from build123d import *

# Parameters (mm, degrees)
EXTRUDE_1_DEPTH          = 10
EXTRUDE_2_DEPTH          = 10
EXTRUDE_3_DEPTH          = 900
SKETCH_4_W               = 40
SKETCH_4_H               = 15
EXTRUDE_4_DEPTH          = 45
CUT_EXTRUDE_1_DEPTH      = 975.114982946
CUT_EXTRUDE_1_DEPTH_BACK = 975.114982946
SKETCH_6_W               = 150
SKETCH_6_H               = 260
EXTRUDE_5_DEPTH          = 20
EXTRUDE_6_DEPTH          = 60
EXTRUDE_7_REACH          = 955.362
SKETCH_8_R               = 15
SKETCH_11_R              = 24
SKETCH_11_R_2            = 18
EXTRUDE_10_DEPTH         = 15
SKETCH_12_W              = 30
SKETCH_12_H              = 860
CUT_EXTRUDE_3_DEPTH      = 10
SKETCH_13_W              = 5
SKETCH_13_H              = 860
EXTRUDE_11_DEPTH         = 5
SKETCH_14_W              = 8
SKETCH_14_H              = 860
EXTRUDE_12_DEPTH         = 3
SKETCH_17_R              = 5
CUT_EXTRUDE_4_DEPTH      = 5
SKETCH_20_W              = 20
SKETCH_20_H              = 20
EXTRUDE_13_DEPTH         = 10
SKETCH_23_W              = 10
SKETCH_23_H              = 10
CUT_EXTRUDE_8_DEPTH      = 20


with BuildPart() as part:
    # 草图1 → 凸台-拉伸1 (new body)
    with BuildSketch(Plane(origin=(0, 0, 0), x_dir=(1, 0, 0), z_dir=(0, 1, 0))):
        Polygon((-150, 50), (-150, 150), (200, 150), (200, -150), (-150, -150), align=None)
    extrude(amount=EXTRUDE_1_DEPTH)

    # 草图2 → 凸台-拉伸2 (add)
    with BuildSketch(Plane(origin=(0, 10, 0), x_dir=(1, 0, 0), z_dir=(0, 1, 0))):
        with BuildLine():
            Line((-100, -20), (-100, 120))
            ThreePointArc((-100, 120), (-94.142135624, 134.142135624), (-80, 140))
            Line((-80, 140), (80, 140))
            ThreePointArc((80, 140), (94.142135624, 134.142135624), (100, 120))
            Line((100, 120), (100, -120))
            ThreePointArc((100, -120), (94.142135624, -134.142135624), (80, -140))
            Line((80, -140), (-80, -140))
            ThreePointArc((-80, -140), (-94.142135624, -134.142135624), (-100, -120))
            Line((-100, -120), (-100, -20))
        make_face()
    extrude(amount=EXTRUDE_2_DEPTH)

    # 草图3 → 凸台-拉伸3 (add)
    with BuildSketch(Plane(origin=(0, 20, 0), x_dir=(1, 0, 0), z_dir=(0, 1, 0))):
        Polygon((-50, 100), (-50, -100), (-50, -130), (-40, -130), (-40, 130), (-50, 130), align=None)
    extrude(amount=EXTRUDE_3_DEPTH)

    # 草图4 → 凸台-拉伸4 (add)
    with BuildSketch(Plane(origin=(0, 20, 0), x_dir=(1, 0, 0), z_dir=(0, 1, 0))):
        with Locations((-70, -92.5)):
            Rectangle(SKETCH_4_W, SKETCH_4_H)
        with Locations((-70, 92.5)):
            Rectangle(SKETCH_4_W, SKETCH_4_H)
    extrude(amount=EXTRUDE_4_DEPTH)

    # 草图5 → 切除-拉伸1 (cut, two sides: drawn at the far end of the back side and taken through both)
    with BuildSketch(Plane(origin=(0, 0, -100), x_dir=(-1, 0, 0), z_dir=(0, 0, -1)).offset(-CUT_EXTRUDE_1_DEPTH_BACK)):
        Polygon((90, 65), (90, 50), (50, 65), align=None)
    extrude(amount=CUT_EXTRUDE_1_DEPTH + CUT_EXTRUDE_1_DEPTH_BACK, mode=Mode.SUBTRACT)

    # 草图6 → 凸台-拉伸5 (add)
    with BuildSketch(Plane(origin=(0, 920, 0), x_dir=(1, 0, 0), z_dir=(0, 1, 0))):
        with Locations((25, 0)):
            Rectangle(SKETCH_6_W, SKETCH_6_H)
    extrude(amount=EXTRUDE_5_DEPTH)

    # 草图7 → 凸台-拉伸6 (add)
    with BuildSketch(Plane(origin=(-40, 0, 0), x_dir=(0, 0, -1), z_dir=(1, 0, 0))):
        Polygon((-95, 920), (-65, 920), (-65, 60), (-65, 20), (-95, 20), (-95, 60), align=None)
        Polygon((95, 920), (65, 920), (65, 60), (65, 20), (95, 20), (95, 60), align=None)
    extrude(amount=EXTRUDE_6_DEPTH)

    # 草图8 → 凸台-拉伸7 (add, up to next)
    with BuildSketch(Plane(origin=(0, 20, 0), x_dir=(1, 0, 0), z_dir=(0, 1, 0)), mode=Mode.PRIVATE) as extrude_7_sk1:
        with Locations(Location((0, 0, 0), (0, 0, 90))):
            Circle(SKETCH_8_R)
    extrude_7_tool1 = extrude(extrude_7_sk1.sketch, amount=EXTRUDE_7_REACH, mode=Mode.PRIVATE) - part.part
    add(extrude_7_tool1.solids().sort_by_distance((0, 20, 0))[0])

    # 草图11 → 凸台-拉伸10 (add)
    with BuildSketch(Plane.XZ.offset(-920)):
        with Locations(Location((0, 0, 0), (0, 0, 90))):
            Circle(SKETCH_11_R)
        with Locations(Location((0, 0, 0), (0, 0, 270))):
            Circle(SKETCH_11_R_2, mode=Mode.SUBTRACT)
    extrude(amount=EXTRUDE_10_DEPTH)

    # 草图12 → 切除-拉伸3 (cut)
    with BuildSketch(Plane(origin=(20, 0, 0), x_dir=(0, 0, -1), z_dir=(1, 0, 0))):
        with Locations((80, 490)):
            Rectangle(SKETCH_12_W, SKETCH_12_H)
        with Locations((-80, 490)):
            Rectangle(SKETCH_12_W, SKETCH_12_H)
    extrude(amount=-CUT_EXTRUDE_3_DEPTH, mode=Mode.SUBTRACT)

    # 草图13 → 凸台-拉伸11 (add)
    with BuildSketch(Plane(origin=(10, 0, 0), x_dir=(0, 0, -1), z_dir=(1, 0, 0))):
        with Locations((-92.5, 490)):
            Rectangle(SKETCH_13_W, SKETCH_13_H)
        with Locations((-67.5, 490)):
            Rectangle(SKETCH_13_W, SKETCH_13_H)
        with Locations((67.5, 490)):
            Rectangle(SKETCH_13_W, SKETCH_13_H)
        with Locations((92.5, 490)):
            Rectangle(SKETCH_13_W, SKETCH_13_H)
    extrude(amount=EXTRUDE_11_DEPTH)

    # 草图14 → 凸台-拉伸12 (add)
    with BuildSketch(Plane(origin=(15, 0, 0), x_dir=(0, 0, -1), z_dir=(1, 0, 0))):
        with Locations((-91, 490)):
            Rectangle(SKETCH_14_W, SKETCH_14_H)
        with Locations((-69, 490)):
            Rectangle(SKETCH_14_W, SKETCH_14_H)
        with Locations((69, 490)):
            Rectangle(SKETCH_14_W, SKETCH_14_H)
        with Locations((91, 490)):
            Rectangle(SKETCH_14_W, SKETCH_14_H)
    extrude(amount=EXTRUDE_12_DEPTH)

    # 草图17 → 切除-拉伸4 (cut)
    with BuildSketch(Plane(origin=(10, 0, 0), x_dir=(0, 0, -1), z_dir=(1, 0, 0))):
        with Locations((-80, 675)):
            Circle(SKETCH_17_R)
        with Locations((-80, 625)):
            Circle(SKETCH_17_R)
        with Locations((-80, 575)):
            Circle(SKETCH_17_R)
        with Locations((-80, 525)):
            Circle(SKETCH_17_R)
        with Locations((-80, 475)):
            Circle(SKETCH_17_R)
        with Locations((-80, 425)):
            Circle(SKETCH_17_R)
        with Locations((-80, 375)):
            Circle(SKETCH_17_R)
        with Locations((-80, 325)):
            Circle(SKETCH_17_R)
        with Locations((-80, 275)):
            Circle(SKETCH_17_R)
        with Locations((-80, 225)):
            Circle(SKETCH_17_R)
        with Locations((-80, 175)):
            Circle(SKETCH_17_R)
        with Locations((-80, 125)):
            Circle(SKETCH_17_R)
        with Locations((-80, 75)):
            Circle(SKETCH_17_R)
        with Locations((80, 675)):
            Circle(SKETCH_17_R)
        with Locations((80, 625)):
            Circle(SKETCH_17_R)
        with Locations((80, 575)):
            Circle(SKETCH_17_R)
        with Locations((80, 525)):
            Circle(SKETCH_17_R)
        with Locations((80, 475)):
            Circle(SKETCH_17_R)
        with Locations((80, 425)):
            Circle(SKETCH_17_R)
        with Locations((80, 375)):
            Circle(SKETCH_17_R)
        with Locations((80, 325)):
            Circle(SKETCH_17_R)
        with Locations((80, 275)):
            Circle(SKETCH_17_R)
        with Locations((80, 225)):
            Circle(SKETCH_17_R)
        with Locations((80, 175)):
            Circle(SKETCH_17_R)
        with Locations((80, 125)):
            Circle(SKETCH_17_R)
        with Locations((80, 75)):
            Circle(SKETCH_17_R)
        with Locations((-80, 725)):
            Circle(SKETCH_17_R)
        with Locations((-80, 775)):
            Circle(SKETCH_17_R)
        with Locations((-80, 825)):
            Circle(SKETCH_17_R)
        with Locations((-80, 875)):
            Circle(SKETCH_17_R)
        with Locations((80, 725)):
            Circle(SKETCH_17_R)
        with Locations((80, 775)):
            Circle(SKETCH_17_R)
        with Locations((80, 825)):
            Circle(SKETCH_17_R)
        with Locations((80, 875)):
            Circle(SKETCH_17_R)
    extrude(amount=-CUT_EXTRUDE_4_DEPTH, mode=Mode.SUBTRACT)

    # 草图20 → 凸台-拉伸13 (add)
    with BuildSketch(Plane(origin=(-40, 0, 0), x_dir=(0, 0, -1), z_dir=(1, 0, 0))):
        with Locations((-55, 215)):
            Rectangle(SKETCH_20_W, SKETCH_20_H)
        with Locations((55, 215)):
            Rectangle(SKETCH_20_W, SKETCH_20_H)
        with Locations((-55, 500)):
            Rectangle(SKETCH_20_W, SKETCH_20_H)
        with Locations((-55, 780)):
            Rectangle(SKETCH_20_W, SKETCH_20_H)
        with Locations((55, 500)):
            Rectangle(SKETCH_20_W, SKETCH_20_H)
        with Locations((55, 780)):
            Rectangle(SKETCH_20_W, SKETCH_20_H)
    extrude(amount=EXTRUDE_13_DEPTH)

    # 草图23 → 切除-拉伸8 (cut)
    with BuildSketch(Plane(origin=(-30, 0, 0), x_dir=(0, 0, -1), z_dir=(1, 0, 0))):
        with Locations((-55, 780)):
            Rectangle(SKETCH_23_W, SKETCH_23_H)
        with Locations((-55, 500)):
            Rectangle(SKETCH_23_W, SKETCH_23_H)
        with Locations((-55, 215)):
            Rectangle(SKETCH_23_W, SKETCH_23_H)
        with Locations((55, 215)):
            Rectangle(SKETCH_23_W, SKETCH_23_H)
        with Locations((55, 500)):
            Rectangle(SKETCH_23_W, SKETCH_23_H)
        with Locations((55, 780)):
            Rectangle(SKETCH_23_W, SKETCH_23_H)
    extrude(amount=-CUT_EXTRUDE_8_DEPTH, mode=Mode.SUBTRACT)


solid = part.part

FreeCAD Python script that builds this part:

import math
import FreeCAD as App
import Part
import Sketcher

V = App.Vector

doc = App.newDocument("Part")
body = doc.addObject("PartDesign::Body", "Body")

sketch1 = body.newObject("Sketcher::SketchObject", "Sketch")
sketch1.AttachmentSupport = (doc.getObject("XZ_Plane"), [""])
sketch1.MapMode = "FlatFace"
sketch1.addGeometry([
    Part.LineSegment(V(-150, -150, 0), V(-150, 150, 0)),
    Part.LineSegment(V(-150, 150, 0), V(200, 150, 0)),
    Part.LineSegment(V(200, 150, 0), V(200, -150, 0)),
    Part.LineSegment(V(200, -150, 0), V(-150, -150, 0)),
], False)
sketch1.addConstraint([
    Sketcher.Constraint("Coincident", 0, 2, 1, 1),
    Sketcher.Constraint("Coincident", 1, 2, 2, 1),
    Sketcher.Constraint("Coincident", 2, 2, 3, 1),
    Sketcher.Constraint("Coincident", 3, 2, 0, 1),
    Sketcher.Constraint("Vertical", 0),
    Sketcher.Constraint("Horizontal", 1),
    Sketcher.Constraint("Vertical", 2),
    Sketcher.Constraint("Horizontal", 3),
    Sketcher.Constraint("DistanceX", 1, 1, 1, 2, 350.0),
    Sketcher.Constraint("DistanceY", 0, 1, 0, 2, 300.0),
    Sketcher.Constraint("DistanceX", 0, 2, -1, 1, 150.0),
    Sketcher.Constraint("DistanceY", -1, 1, 0, 2, 150.0),
])
pad1 = body.newObject("PartDesign::Pad", "Pad")
pad1.Profile = sketch1
pad1.Length = 10
pad1.Reversed = True

sketch2 = body.newObject("Sketcher::SketchObject", "Sketch001")
sketch2.AttachmentSupport = (doc.getObject("XZ_Plane"), [""])
sketch2.MapMode = "FlatFace"
sketch2.AttachmentOffset = App.Placement(V(0, 0, -10), App.Rotation())
sketch2.addGeometry([
    Part.ArcOfCircle(Part.Circle(V(-80, -120, 0), V(0, 0, 1), 20), math.radians(180), math.radians(270)),
    Part.LineSegment(V(-100, -120, 0), V(-100, 120, 0)),
    Part.ArcOfCircle(Part.Circle(V(-80, 120, 0), V(0, 0, 1), 20), math.radians(90), math.radians(180)),
    Part.LineSegment(V(-80, 140, 0), V(80, 140, 0)),
    Part.ArcOfCircle(Part.Circle(V(80, 120, 0), V(0, 0, 1), 20), math.radians(0), math.radians(90)),
    Part.LineSegment(V(100, 120, 0), V(100, -120, 0)),
    Part.ArcOfCircle(Part.Circle(V(80, -120, 0), V(0, 0, 1), 20), math.radians(-90), math.radians(0)),
    Part.LineSegment(V(80, -140, 0), V(-80, -140, 0)),
], False)
sketch2.addConstraint([
    Sketcher.Constraint("Tangent", 0, 1, 1, 1),
    Sketcher.Constraint("Tangent", 1, 2, 2, 2),
    Sketcher.Constraint("Tangent", 2, 1, 3, 1),
    Sketcher.Constraint("Tangent", 3, 2, 4, 2),
    Sketcher.Constraint("Tangent", 4, 1, 5, 1),
    Sketcher.Constraint("Tangent", 5, 2, 6, 2),
    Sketcher.Constraint("Tangent", 6, 1, 7, 1),
    Sketcher.Constraint("Tangent", 7, 2, 0, 2),
    Sketcher.Constraint("Vertical", 1),
    Sketcher.Constraint("Horizontal", 3),
    Sketcher.Constraint("Vertical", 5),
    Sketcher.Constraint("Horizontal", 7),
    Sketcher.Constraint("Equal", 0, 2),
    Sketcher.Constraint("Equal", 2, 4),
    Sketcher.Constraint("Equal", 4, 6),
    Sketcher.Constraint("Symmetric", 0, 3, 4, 3, -1, 1),
    Sketcher.Constraint("Radius", 0, 20.0),
    Sketcher.Constraint("DistanceX", 3, 1, 3, 2, 160.0),
    Sketcher.Constraint("DistanceY", 1, 1, 1, 2, 240.0),
])
pad2 = body.newObject("PartDesign::Pad", "Pad001")
pad2.Profile = sketch2
pad2.Length = 10
pad2.Reversed = True

sketch3 = body.newObject("Sketcher::SketchObject", "Sketch002")
sketch3.AttachmentSupport = (doc.getObject("XZ_Plane"), [""])
sketch3.MapMode = "FlatFace"
sketch3.AttachmentOffset = App.Placement(V(0, 0, -20), App.Rotation())
sketch3.addGeometry([
    Part.LineSegment(V(-50, 130, 0), V(-40, 130, 0)),
    Part.LineSegment(V(-40, 130, 0), V(-40, -130, 0)),
    Part.LineSegment(V(-40, -130, 0), V(-50, -130, 0)),
    Part.LineSegment(V(-50, -130, 0), V(-50, 130, 0)),
], False)
sketch3.addConstraint([
    Sketcher.Constraint("Coincident", 0, 2, 1, 1),
    Sketcher.Constraint("Coincident", 1, 2, 2, 1),
    Sketcher.Constraint("Coincident", 2, 2, 3, 1),
    Sketcher.Constraint("Coincident", 3, 2, 0, 1),
    Sketcher.Constraint("Horizontal", 0),
    Sketcher.Constraint("Vertical", 1),
    Sketcher.Constraint("Horizontal", 2),
    Sketcher.Constraint("Vertical", 3),
    Sketcher.Constraint("DistanceX", 0, 1, 0, 2, 10.0),
    Sketcher.Constraint("DistanceY", 1, 2, 1, 1, 260.0),
    Sketcher.Constraint("DistanceX", 0, 2, -1, 1, 40.0),
    Sketcher.Constraint("DistanceY", -1, 1, 0, 2, 130.0),
])
pad3 = body.newObject("PartDesign::Pad", "Pad002")
pad3.Profile = sketch3
pad3.Length = 900
pad3.Reversed = True

sketch4 = body.newObject("Sketcher::SketchObject", "Sketch003")
sketch4.AttachmentSupport = (doc.getObject("XZ_Plane"), [""])
sketch4.MapMode = "FlatFace"
sketch4.AttachmentOffset = App.Placement(V(0, 0, -20), App.Rotation())
sketch4.addGeometry([
    Part.LineSegment(V(-90, 85, 0), V(-90, 100, 0)),
    Part.LineSegment(V(-90, 100, 0), V(-50, 100, 0)),
    Part.LineSegment(V(-50, 100, 0), V(-50, 85, 0)),
    Part.LineSegment(V(-50, 85, 0), V(-90, 85, 0)),
    Part.LineSegment(V(-90, -100, 0), V(-90, -85, 0)),
    Part.LineSegment(V(-90, -85, 0), V(-50, -85, 0)),
    Part.LineSegment(V(-50, -85, 0), V(-50, -100, 0)),
    Part.LineSegment(V(-50, -100, 0), V(-90, -100, 0)),
], False)
sketch4.addConstraint([
    Sketcher.Constraint("Coincident", 0, 2, 1, 1),
    Sketcher.Constraint("Coincident", 1, 2, 2, 1),
    Sketcher.Constraint("Coincident", 2, 2, 3, 1),
    Sketcher.Constraint("Coincident", 3, 2, 0, 1),
    Sketcher.Constraint("Coincident", 4, 2, 5, 1),
    Sketcher.Constraint("Coincident", 5, 2, 6, 1),
    Sketcher.Constraint("Coincident", 6, 2, 7, 1),
    Sketcher.Constraint("Coincident", 7, 2, 4, 1),
    Sketcher.Constraint("Vertical", 0),
    Sketcher.Constraint("Horizontal", 1),
    Sketcher.Constraint("Vertical", 2),
    Sketcher.Constraint("Horizontal", 3),
    Sketcher.Constraint("Vertical", 4),
    Sketcher.Constraint("Horizontal", 5),
    Sketcher.Constraint("Vertical", 6),
    Sketcher.Constraint("Horizontal", 7),
    Sketcher.Constraint("Symmetric", 3, 2, 4, 2, -1),
    Sketcher.Constraint("Symmetric", 1, 2, 6, 2, -1),
    Sketcher.Constraint("DistanceX", 1, 1, 1, 2, 40.0),
    Sketcher.Constraint("DistanceY", 0, 1, 0, 2, 15.0),
    Sketcher.Constraint("DistanceX", 0, 2, -1, 1, 90.0),
    Sketcher.Constraint("DistanceY", -1, 1, 0, 2, 100.0),
])
pad4 = body.newObject("PartDesign::Pad", "Pad003")
pad4.Profile = sketch4
pad4.Length = 45
pad4.Reversed = True

sketch5 = body.newObject("Sketcher::SketchObject", "Sketch004")
sketch5.AttachmentSupport = (doc.getObject("XY_Plane"), [""])
sketch5.MapMode = "FlatFace"
sketch5.AttachmentOffset = App.Placement(V(0, 0, -100), App.Rotation())
sketch5.addGeometry([
    Part.LineSegment(V(-90, 50, 0), V(-90, 65, 0)),
    Part.LineSegment(V(-90, 65, 0), V(-50, 65, 0)),
    Part.LineSegment(V(-50, 65, 0), V(-90, 50, 0)),
], False)
sketch5.addConstraint([
    Sketcher.Constraint("Coincident", 0, 2, 1, 1),
    Sketcher.Constraint("Coincident", 1, 2, 2, 1),
    Sketcher.Constraint("Coincident", 2, 2, 0, 1),
    Sketcher.Constraint("Vertical", 0),
    Sketcher.Constraint("Horizontal", 1),
    Sketcher.Constraint("DistanceX", 1, 1, 1, 2, 40.0),
    Sketcher.Constraint("DistanceY", 0, 1, 0, 2, 15.0),
    Sketcher.Constraint("DistanceX", 0, 2, -1, 1, 90.0),
    Sketcher.Constraint("DistanceY", -1, 1, 0, 2, 65.0),
])
pocket1 = body.newObject("PartDesign::Pocket", "Pocket")
pocket1.Profile = sketch5
pocket1.Type = "ThroughAll"
pocket1.Midplane = True

sketch6 = body.newObject("Sketcher::SketchObject", "Sketch005")
sketch6.AttachmentSupport = (doc.getObject("XZ_Plane"), [""])
sketch6.MapMode = "FlatFace"
sketch6.AttachmentOffset = App.Placement(V(0, 0, -920), App.Rotation())
sketch6.addGeometry([
    Part.LineSegment(V(-50, -130, 0), V(-50, 130, 0)),
    Part.LineSegment(V(-50, 130, 0), V(100, 130, 0)),
    Part.LineSegment(V(100, 130, 0), V(100, -130, 0)),
    Part.LineSegment(V(100, -130, 0), V(-50, -130, 0)),
], False)
sketch6.addConstraint([
    Sketcher.Constraint("Coincident", 0, 2, 1, 1),
    Sketcher.Constraint("Coincident", 1, 2, 2, 1),
    Sketcher.Constraint("Coincident", 2, 2, 3, 1),
    Sketcher.Constraint("Coincident", 3, 2, 0, 1),
    Sketcher.Constraint("Vertical", 0),
    Sketcher.Constraint("Horizontal", 1),
    Sketcher.Constraint("Vertical", 2),
    Sketcher.Constraint("Horizontal", 3),
    Sketcher.Constraint("DistanceX", 1, 1, 1, 2, 150.0),
    Sketcher.Constraint("DistanceY", 0, 1, 0, 2, 260.0),
    Sketcher.Constraint("DistanceX", 0, 2, -1, 1, 50.0),
    Sketcher.Constraint("DistanceY", -1, 1, 0, 2, 130.0),
])
pad5 = body.newObject("PartDesign::Pad", "Pad004")
pad5.Profile = sketch6
pad5.Length = 20
pad5.Reversed = True

sketch7 = body.newObject("Sketcher::SketchObject", "Sketch006")
sketch7.AttachmentSupport = (doc.getObject("YZ_Plane"), [""])
sketch7.MapMode = "FlatFace"
sketch7.AttachmentOffset = App.Placement(V(0, 0, -40), App.Rotation())
sketch7.addGeometry([
    Part.LineSegment(V(920, 65, 0), V(920, 95, 0)),
    Part.LineSegment(V(920, 95, 0), V(20, 95, 0)),
    Part.LineSegment(V(20, 95, 0), V(20, 65, 0)),
    Part.LineSegment(V(20, 65, 0), V(920, 65, 0)),
    Part.LineSegment(V(920, -95, 0), V(920, -65, 0)),
    Part.LineSegment(V(920, -65, 0), V(20, -65, 0)),
    Part.LineSegment(V(20, -65, 0), V(20, -95, 0)),
    Part.LineSegment(V(20, -95, 0), V(920, -95, 0)),
], False)
sketch7.addConstraint([
    Sketcher.Constraint("Coincident", 0, 2, 1, 1),
    Sketcher.Constraint("Coincident", 1, 2, 2, 1),
    Sketcher.Constraint("Coincident", 2, 2, 3, 1),
    Sketcher.Constraint("Coincident", 3, 2, 0, 1),
    Sketcher.Constraint("Coincident", 4, 2, 5, 1),
    Sketcher.Constraint("Coincident", 5, 2, 6, 1),
    Sketcher.Constraint("Coincident", 6, 2, 7, 1),
    Sketcher.Constraint("Coincident", 7, 2, 4, 1),
    Sketcher.Constraint("Vertical", 0),
    Sketcher.Constraint("Horizontal", 1),
    Sketcher.Constraint("Vertical", 2),
    Sketcher.Constraint("Horizontal", 3),
    Sketcher.Constraint("Vertical", 4),
    Sketcher.Constraint("Horizontal", 5),
    Sketcher.Constraint("Vertical", 6),
    Sketcher.Constraint("Horizontal", 7),
    Sketcher.Constraint("Symmetric", 3, 2, 4, 2, -1),
    Sketcher.Constraint("Symmetric", 1, 2, 6, 2, -1),
    Sketcher.Constraint("DistanceX", 1, 2, 1, 1, 900.0),
    Sketcher.Constraint("DistanceY", 0, 1, 0, 2, 30.0),
    Sketcher.Constraint("DistanceX", -1, 1, 0, 2, 920.0),
    Sketcher.Constraint("DistanceY", -1, 1, 0, 2, 95.0),
])
pad6 = body.newObject("PartDesign::Pad", "Pad005")
pad6.Profile = sketch7
pad6.Length = 60

sketch8 = body.newObject("Sketcher::SketchObject", "Sketch007")
sketch8.AttachmentSupport = (doc.getObject("XZ_Plane"), [""])
sketch8.MapMode = "FlatFace"
sketch8.AttachmentOffset = App.Placement(V(0, 0, -20), App.Rotation())
sketch8.addGeometry(Part.Circle(V(0, 0, 0), V(0, 0, 1), 15), False)
sketch8.addConstraint([
    Sketcher.Constraint("Coincident", 0, 3, -1, 1),
    Sketcher.Constraint("Diameter", 0, 30.0),
])
pad7 = body.newObject("PartDesign::Pad", "Pad006")
pad7.Profile = sketch8
pad7.Type = "UpToFirst"
pad7.Reversed = True

sketch9 = body.newObject("Sketcher::SketchObject", "Sketch008")
sketch9.AttachmentSupport = (doc.getObject("XZ_Plane"), [""])
sketch9.MapMode = "FlatFace"
sketch9.AttachmentOffset = App.Placement(V(0, 0, -920), App.Rotation())
sketch9.addGeometry([
    Part.Circle(V(0, 0, 0), V(0, 0, 1), 24),
    Part.Circle(V(0, 0, 0), V(0, 0, 1), 18),
], False)
sketch9.addConstraint([
    Sketcher.Constraint("Coincident", 0, 3, -1, 1),
    Sketcher.Constraint("Coincident", 1, 3, -1, 1),
    Sketcher.Constraint("Diameter", 0, 48.0),
    Sketcher.Constraint("Diameter", 1, 36.0),
])
pad8 = body.newObject("PartDesign::Pad", "Pad007")
pad8.Profile = sketch9
pad8.Length = 15

sketch10 = body.newObject("Sketcher::SketchObject", "Sketch009")
sketch10.AttachmentSupport = (doc.getObject("YZ_Plane"), [""])
sketch10.MapMode = "FlatFace"
sketch10.AttachmentOffset = App.Placement(V(0, 0, 20), App.Rotation())
sketch10.addGeometry([
    Part.LineSegment(V(920, -65, 0), V(60, -65, 0)),
    Part.LineSegment(V(60, -65, 0), V(60, -95, 0)),
    Part.LineSegment(V(60, -95, 0), V(920, -95, 0)),
    Part.LineSegment(V(920, -95, 0), V(920, -65, 0)),
    Part.LineSegment(V(920, 95, 0), V(60, 95, 0)),
    Part.LineSegment(V(60, 95, 0), V(60, 65, 0)),
    Part.LineSegment(V(60, 65, 0), V(920, 65, 0)),
    Part.LineSegment(V(920, 65, 0), V(920, 95, 0)),
], False)
sketch10.addConstraint([
    Sketcher.Constraint("Coincident", 0, 2, 1, 1),
    Sketcher.Constraint("Coincident", 1, 2, 2, 1),
    Sketcher.Constraint("Coincident", 2, 2, 3, 1),
    Sketcher.Constraint("Coincident", 3, 2, 0, 1),
    Sketcher.Constraint("Coincident", 4, 2, 5, 1),
    Sketcher.Constraint("Coincident", 5, 2, 6, 1),
    Sketcher.Constraint("Coincident", 6, 2, 7, 1),
    Sketcher.Constraint("Coincident", 7, 2, 4, 1),
    Sketcher.Constraint("Horizontal", 0),
    Sketcher.Constraint("Vertical", 1),
    Sketcher.Constraint("Horizontal", 2),
    Sketcher.Constraint("Vertical", 3),
    Sketcher.Constraint("Horizontal", 4),
    Sketcher.Constraint("Vertical", 5),
    Sketcher.Constraint("Horizontal", 6),
    Sketcher.Constraint("Vertical", 7),
    Sketcher.Constraint("Symmetric", 1, 2, 4, 2, -1),
    Sketcher.Constraint("Symmetric", 3, 2, 6, 2, -1),
    Sketcher.Constraint("DistanceX", 0, 2, 0, 1, 860.0),
    Sketcher.Constraint("DistanceY", 1, 2, 1, 1, 30.0),
    Sketcher.Constraint("DistanceX", -1, 1, 0, 2, 60.0),
    Sketcher.Constraint("DistanceY", 0, 2, -1, 1, 65.0),
])
pocket2 = body.newObject("PartDesign::Pocket", "Pocket001")
pocket2.Profile = sketch10
pocket2.Length = 10

sketch11 = body.newObject("Sketcher::SketchObject", "Sketch010")
sketch11.AttachmentSupport = (doc.getObject("YZ_Plane"), [""])
sketch11.MapMode = "FlatFace"
sketch11.AttachmentOffset = App.Placement(V(0, 0, 10), App.Rotation())
sketch11.addGeometry([
    Part.LineSegment(V(920, 95, 0), V(60, 95, 0)),
    Part.LineSegment(V(60, 95, 0), V(60, 90, 0)),
    Part.LineSegment(V(60, 90, 0), V(920, 90, 0)),
    Part.LineSegment(V(920, 90, 0), V(920, 95, 0)),
    Part.LineSegment(V(920, 70, 0), V(60, 70, 0)),
    Part.LineSegment(V(60, 70, 0), V(60, 65, 0)),
    Part.LineSegment(V(60, 65, 0), V(920, 65, 0)),
    Part.LineSegment(V(920, 65, 0), V(920, 70, 0)),
    Part.LineSegment(V(920, -65, 0), V(60, -65, 0)),
    Part.LineSegment(V(60, -65, 0), V(60, -70, 0)),
    Part.LineSegment(V(60, -70, 0), V(920, -70, 0)),
    Part.LineSegment(V(920, -70, 0), V(920, -65, 0)),
    Part.LineSegment(V(920, -90, 0), V(60, -90, 0)),
    Part.LineSegment(V(60, -90, 0), V(60, -95, 0)),
    Part.LineSegment(V(60, -95, 0), V(920, -95, 0)),
    Part.LineSegment(V(920, -95, 0), V(920, -90, 0)),
], False)
sketch11.addConstraint([
    Sketcher.Constraint("Coincident", 0, 2, 1, 1),
    Sketcher.Constraint("Coincident", 1, 2, 2, 1),
    Sketcher.Constraint("Coincident", 2, 2, 3, 1),
    Sketcher.Constraint("Coincident", 3, 2, 0, 1),
    Sketcher.Constraint("Coincident", 4, 2, 5, 1),
    Sketcher.Constraint("Coincident", 5, 2, 6, 1),
    Sketcher.Constraint("Coincident", 6, 2, 7, 1),
    Sketcher.Constraint("Coincident", 7, 2, 4, 1),
    Sketcher.Constraint("Coincident", 8, 2, 9, 1),
    Sketcher.Constraint("Coincident", 9, 2, 10, 1),
    Sketcher.Constraint("Coincident", 10, 2, 11, 1),
    Sketcher.Constraint("Coincident", 11, 2, 8, 1),
    Sketcher.Constraint("Coincident", 12, 2, 13, 1),
    Sketcher.Constraint("Coincident", 13, 2, 14, 1),
    Sketcher.Constraint("Coincident", 14, 2, 15, 1),
    Sketcher.Constraint("Coincident", 15, 2, 12, 1),
    Sketcher.Constraint("Horizontal", 0),
    Sketcher.Constraint("Vertical", 1),
    Sketcher.Constraint("Horizontal", 2),
    Sketcher.Constraint("Vertical", 3),
    Sketcher.Constraint("Horizontal", 4),
    Sketcher.Constraint("Vertical", 5),
    Sketcher.Constraint("Horizontal", 6),
    Sketcher.Constraint("Vertical", 7),
    Sketcher.Constraint("Horizontal", 8),
    Sketcher.Constraint("Vertical", 9),
    Sketcher.Constraint("Horizontal", 10),
    Sketcher.Constraint("Vertical", 11),
    Sketcher.Constraint("Horizontal", 12),
    Sketcher.Constraint("Vertical", 13),
    Sketcher.Constraint("Horizontal", 14),
    Sketcher.Constraint("Vertical", 15),
    Sketcher.Constraint("Symmetric", 5, 2, 8, 2, -1),
    Sketcher.Constraint("Symmetric", 7, 2, 10, 2, -1),
    Sketcher.Constraint("Symmetric", 1, 2, 12, 2, -1),
    Sketcher.Constraint("Symmetric", 3, 2, 14, 2, -1),
    Sketcher.Constraint("Vertical", 1, 2, 4, 2),
    Sketcher.Constraint("Vertical", 3, 2, 6, 2),
    Sketcher.Constraint("Equal", 3, 5),
    Sketcher.Constraint("DistanceX", 0, 2, 0, 1, 860.0),
    Sketcher.Constraint("DistanceY", 1, 2, 1, 1, 5.0),
    Sketcher.Constraint("DistanceX", -1, 1, 0, 2, 60.0),
    Sketcher.Constraint("DistanceY", -1, 1, 0, 2, 95.0),
    Sketcher.Constraint("DistanceY", -1, 1, 4, 2, 70.0),
])
pad9 = body.newObject("PartDesign::Pad", "Pad008")
pad9.Profile = sketch11
pad9.Length = 5

sketch12 = body.newObject("Sketcher::SketchObject", "Sketch011")
sketch12.AttachmentSupport = (doc.getObject("YZ_Plane"), [""])
sketch12.MapMode = "FlatFace"
sketch12.AttachmentOffset = App.Placement(V(0, 0, 15), App.Rotation())
sketch12.addGeometry([
    Part.LineSegment(V(920, 95, 0), V(60, 95, 0)),
    Part.LineSegment(V(60, 95, 0), V(60, 87, 0)),
    Part.LineSegment(V(60, 87, 0), V(920, 87, 0)),
    Part.LineSegment(V(920, 87, 0), V(920, 95, 0)),
    Part.LineSegment(V(920, 73, 0), V(60, 73, 0)),
    Part.LineSegment(V(60, 73, 0), V(60, 65, 0)),
    Part.LineSegment(V(60, 65, 0), V(920, 65, 0)),
    Part.LineSegment(V(920, 65, 0), V(920, 73, 0)),
    Part.LineSegment(V(920, -65, 0), V(60, -65, 0)),
    Part.LineSegment(V(60, -65, 0), V(60, -73, 0)),
    Part.LineSegment(V(60, -73, 0), V(920, -73, 0)),
    Part.LineSegment(V(920, -73, 0), V(920, -65, 0)),
    Part.LineSegment(V(920, -87, 0), V(60, -87, 0)),
    Part.LineSegment(V(60, -87, 0), V(60, -95, 0)),
    Part.LineSegment(V(60, -95, 0), V(920, -95, 0)),
    Part.LineSegment(V(920, -95, 0), V(920, -87, 0)),
], False)
sketch12.addConstraint([
    Sketcher.Constraint("Coincident", 0, 2, 1, 1),
    Sketcher.Constraint("Coincident", 1, 2, 2, 1),
    Sketcher.Constraint("Coincident", 2, 2, 3, 1),
    Sketcher.Constraint("Coincident", 3, 2, 0, 1),
    Sketcher.Constraint("Coincident", 4, 2, 5, 1),
    Sketcher.Constraint("Coincident", 5, 2, 6, 1),
    Sketcher.Constraint("Coincident", 6, 2, 7, 1),
    Sketcher.Constraint("Coincident", 7, 2, 4, 1),
    Sketcher.Constraint("Coincident", 8, 2, 9, 1),
    Sketcher.Constraint("Coincident", 9, 2, 10, 1),
    Sketcher.Constraint("Coincident", 10, 2, 11, 1),
    Sketcher.Constraint("Coincident", 11, 2, 8, 1),
    Sketcher.Constraint("Coincident", 12, 2, 13, 1),
    Sketcher.Constraint("Coincident", 13, 2, 14, 1),
    Sketcher.Constraint("Coincident", 14, 2, 15, 1),
    Sketcher.Constraint("Coincident", 15, 2, 12, 1),
    Sketcher.Constraint("Horizontal", 0),
    Sketcher.Constraint("Vertical", 1),
    Sketcher.Constraint("Horizontal", 2),
    Sketcher.Constraint("Vertical", 3),
    Sketcher.Constraint("Horizontal", 4),
    Sketcher.Constraint("Vertical", 5),
    Sketcher.Constraint("Horizontal", 6),
    Sketcher.Constraint("Vertical", 7),
    Sketcher.Constraint("Horizontal", 8),
    Sketcher.Constraint("Vertical", 9),
    Sketcher.Constraint("Horizontal", 10),
    Sketcher.Constraint("Vertical", 11),
    Sketcher.Constraint("Horizontal", 12),
    Sketcher.Constraint("Vertical", 13),
    Sketcher.Constraint("Horizontal", 14),
    Sketcher.Constraint("Vertical", 15),
    Sketcher.Constraint("Symmetric", 5, 2, 8, 2, -1),
    Sketcher.Constraint("Symmetric", 7, 2, 10, 2, -1),
    Sketcher.Constraint("Symmetric", 1, 2, 12, 2, -1),
    Sketcher.Constraint("Symmetric", 3, 2, 14, 2, -1),
    Sketcher.Constraint("Vertical", 1, 2, 4, 2),
    Sketcher.Constraint("Vertical", 3, 2, 6, 2),
    Sketcher.Constraint("Equal", 3, 5),
    Sketcher.Constraint("DistanceX", 0, 2, 0, 1, 860.0),
    Sketcher.Constraint("DistanceY", 1, 2, 1, 1, 8.0),
    Sketcher.Constraint("DistanceX", -1, 1, 0, 2, 60.0),
    Sketcher.Constraint("DistanceY", -1, 1, 0, 2, 95.0),
    Sketcher.Constraint("DistanceY", -1, 1, 4, 2, 73.0),
])
pad10 = body.newObject("PartDesign::Pad", "Pad009")
pad10.Profile = sketch12
pad10.Length = 3

sketch13 = body.newObject("Sketcher::SketchObject", "Sketch012")
sketch13.AttachmentSupport = (doc.getObject("YZ_Plane"), [""])
sketch13.MapMode = "FlatFace"
sketch13.AttachmentOffset = App.Placement(V(0, 0, 10), App.Rotation())
sketch13.addGeometry([
    Part.Circle(V(675, 80, 0), V(0, 0, 1), 5),
    Part.Circle(V(625, 80, 0), V(0, 0, 1), 5),
    Part.Circle(V(575, 80, 0), V(0, 0, 1), 5),
    Part.Circle(V(525, 80, 0), V(0, 0, 1), 5),
    Part.Circle(V(475, 80, 0), V(0, 0, 1), 5),
    Part.Circle(V(425, 80, 0), V(0, 0, 1), 5),
    Part.Circle(V(375, 80, 0), V(0, 0, 1), 5),
    Part.Circle(V(325, 80, 0), V(0, 0, 1), 5),
    Part.Circle(V(275, 80, 0), V(0, 0, 1), 5),
    Part.Circle(V(225, 80, 0), V(0, 0, 1), 5),
    Part.Circle(V(175, 80, 0), V(0, 0, 1), 5),
    Part.Circle(V(125, 80, 0), V(0, 0, 1), 5),
    Part.Circle(V(75, 80, 0), V(0, 0, 1), 5),
    Part.Circle(V(675, -80, 0), V(0, 0, 1), 5),
    Part.Circle(V(625, -80, 0), V(0, 0, 1), 5),
    Part.Circle(V(575, -80, 0), V(0, 0, 1), 5),
    Part.Circle(V(525, -80, 0), V(0, 0, 1), 5),
    Part.Circle(V(475, -80, 0), V(0, 0, 1), 5),
    Part.Circle(V(425, -80, 0), V(0, 0, 1), 5),
    Part.Circle(V(375, -80, 0), V(0, 0, 1), 5),
    Part.Circle(V(325, -80, 0), V(0, 0, 1), 5),
    Part.Circle(V(275, -80, 0), V(0, 0, 1), 5),
    Part.Circle(V(225, -80, 0), V(0, 0, 1), 5),
    Part.Circle(V(175, -80, 0), V(0, 0, 1), 5),
    Part.Circle(V(125, -80, 0), V(0, 0, 1), 5),
    Part.Circle(V(75, -80, 0), V(0, 0, 1), 5),
    Part.Circle(V(725, 80, 0), V(0, 0, 1), 5),
    Part.Circle(V(775, 80, 0), V(0, 0, 1), 5),
    Part.Circle(V(825, 80, 0), V(0, 0, 1), 5),
    Part.Circle(V(875, 80, 0), V(0, 0, 1), 5),
    Part.Circle(V(725, -80, 0), V(0, 0, 1), 5),
    Part.Circle(V(775, -80, 0), V(0, 0, 1), 5),
    Part.Circle(V(825, -80, 0), V(0, 0, 1), 5),
    Part.Circle(V(875, -80, 0), V(0, 0, 1), 5),
], False)
sketch13.addConstraint([
    Sketcher.Constraint("Equal", 0, 1),
    Sketcher.Constraint("Equal", 1, 2),
    Sketcher.Constraint("Equal", 2, 3),
    Sketcher.Constraint("Equal", 3, 4),
    Sketcher.Constraint("Equal", 4, 5),
    Sketcher.Constraint("Equal", 5, 6),
    Sketcher.Constraint("Equal", 6, 7),
    Sketcher.Constraint("Equal", 7, 8),
    Sketcher.Constraint("Equal", 8, 9),
    Sketcher.Constraint("Equal", 9, 10),
    Sketcher.Constraint("Equal", 10, 11),
    Sketcher.Constraint("Equal", 11, 12),
    Sketcher.Constraint("Equal", 12, 13),
    Sketcher.Constraint("Equal", 13, 14),
    Sketcher.Constraint("Equal", 14, 15),
    Sketcher.Constraint("Equal", 15, 16),
    Sketcher.Constraint("Equal", 16, 17),
    Sketcher.Constraint("Equal", 17, 18),
    Sketcher.Constraint("Equal", 18, 19),
    Sketcher.Constraint("Equal", 19, 20),
    Sketcher.Constraint("Equal", 20, 21),
    Sketcher.Constraint("Equal", 21, 22),
    Sketcher.Constraint("Equal", 22, 23),
    Sketcher.Constraint("Equal", 23, 24),
    Sketcher.Constraint("Equal", 24, 25),
    Sketcher.Constraint("Equal", 25, 26),
    Sketcher.Constraint("Equal", 26, 27),
    Sketcher.Constraint("Equal", 27, 28),
    Sketcher.Constraint("Equal", 28, 29),
    Sketcher.Constraint("Equal", 29, 30),
    Sketcher.Constraint("Equal", 30, 31),
    Sketcher.Constraint("Equal", 31, 32),
    Sketcher.Constraint("Equal", 32, 33),
    Sketcher.Constraint("Symmetric", 0, 3, 13, 3, -1),
    Sketcher.Constraint("Symmetric", 1, 3, 14, 3, -1),
    Sketcher.Constraint("Symmetric", 2, 3, 15, 3, -1),
    Sketcher.Constraint("Symmetric", 3, 3, 16, 3, -1),
    Sketcher.Constraint("Symmetric", 4, 3, 17, 3, -1),
    Sketcher.Constraint("Symmetric", 5, 3, 18, 3, -1),
    Sketcher.Constraint("Symmetric", 6, 3, 19, 3, -1),
    Sketcher.Constraint("Symmetric", 7, 3, 20, 3, -1),
    Sketcher.Constraint("Symmetric", 8, 3, 21, 3, -1),
    Sketcher.Constraint("Symmetric", 9, 3, 22, 3, -1),
    Sketcher.Constraint("Symmetric", 10, 3, 23, 3, -1),
    Sketcher.Constraint("Symmetric", 11, 3, 24, 3, -1),
    Sketcher.Constraint("Symmetric", 12, 3, 25, 3, -1),
    Sketcher.Constraint("Symmetric", 26, 3, 30, 3, -1),
    Sketcher.Constraint("Symmetric", 27, 3, 31, 3, -1),
    Sketcher.Constraint("Symmetric", 28, 3, 32, 3, -1),
    Sketcher.Constraint("Symmetric", 29, 3, 33, 3, -1),
    Sketcher.Constraint("Horizontal", 0, 3, 1, 3),
    Sketcher.Constraint("Horizontal", 1, 3, 2, 3),
    Sketcher.Constraint("Horizontal", 2, 3, 3, 3),
    Sketcher.Constraint("Horizontal", 3, 3, 4, 3),
    Sketcher.Constraint("Horizontal", 4, 3, 5, 3),
    Sketcher.Constraint("Horizontal", 5, 3, 6, 3),
    Sketcher.Constraint("Horizontal", 6, 3, 7, 3),
    Sketcher.Constraint("Horizontal", 7, 3, 8, 3),
    Sketcher.Constraint("Horizontal", 8, 3, 9, 3),
    Sketcher.Constraint("Horizontal", 9, 3, 10, 3),
    Sketcher.Constraint("Horizontal", 10, 3, 11, 3),
    Sketcher.Constraint("Horizontal", 11, 3, 12, 3),
    Sketcher.Constraint("Horizontal", 12, 3, 26, 3),
    Sketcher.Constraint("Horizontal", 26, 3, 27, 3),
    Sketcher.Constraint("Horizontal", 27, 3, 28, 3),
    Sketcher.Constraint("Horizontal", 28, 3, 29, 3),
    Sketcher.Constraint("Diameter", 0, 10.0),
    Sketcher.Constraint("DistanceX", -1, 1, 0, 3, 675.0),
    Sketcher.Constraint("DistanceY", -1, 1, 0, 3, 80.0),
    Sketcher.Constraint("DistanceX", -1, 1, 1, 3, 625.0),
    Sketcher.Constraint("DistanceX", -1, 1, 2, 3, 575.0),
    Sketcher.Constraint("DistanceX", -1, 1, 3, 3, 525.0),
    Sketcher.Constraint("DistanceX", -1, 1, 4, 3, 475.0),
    Sketcher.Constraint("DistanceX", -1, 1, 5, 3, 425.0),
    Sketcher.Constraint("DistanceX", -1, 1, 6, 3, 375.0),
    Sketcher.Constraint("DistanceX", -1, 1, 7, 3, 325.0),
    Sketcher.Constraint("DistanceX", -1, 1, 8, 3, 275.0),
    Sketcher.Constraint("DistanceX", -1, 1, 9, 3, 225.0),
    Sketcher.Constraint("DistanceX", -1, 1, 10, 3, 175.0),
    Sketcher.Constraint("DistanceX", -1, 1, 11, 3, 125.0),
    Sketcher.Constraint("DistanceX", -1, 1, 12, 3, 75.0),
    Sketcher.Constraint("DistanceX", -1, 1, 26, 3, 725.0),
    Sketcher.Constraint("DistanceX", -1, 1, 27, 3, 775.0),
    Sketcher.Constraint("DistanceX", -1, 1, 28, 3, 825.0),
    Sketcher.Constraint("DistanceX", -1, 1, 29, 3, 875.0),
])
pocket3 = body.newObject("PartDesign::Pocket", "Pocket002")
pocket3.Profile = sketch13
pocket3.Length = 5

sketch14 = body.newObject("Sketcher::SketchObject", "Sketch013")
sketch14.AttachmentSupport = (doc.getObject("YZ_Plane"), [""])
sketch14.MapMode = "FlatFace"
sketch14.AttachmentOffset = App.Placement(V(0, 0, -40), App.Rotation())
sketch14.addGeometry([
    Part.LineSegment(V(225, 65, 0), V(205, 65, 0)),
    Part.LineSegment(V(205, 65, 0), V(205, 45, 0)),
    Part.LineSegment(V(205, 45, 0), V(225, 45, 0)),
    Part.LineSegment(V(225, 45, 0), V(225, 65, 0)),
    Part.LineSegment(V(225, -45, 0), V(205, -45, 0)),
    Part.LineSegment(V(205, -45, 0), V(205, -65, 0)),
    Part.LineSegment(V(205, -65, 0), V(225, -65, 0)),
    Part.LineSegment(V(225, -65, 0), V(225, -45, 0)),
    Part.LineSegment(V(510, 65, 0), V(490, 65, 0)),
    Part.LineSegment(V(490, 65, 0), V(490, 45, 0)),
    Part.LineSegment(V(490, 45, 0), V(510, 45, 0)),
    Part.LineSegment(V(510, 45, 0), V(510, 65, 0)),
    Part.LineSegment(V(790, 65, 0), V(770, 65, 0)),
    Part.LineSegment(V(770, 65, 0), V(770, 45, 0)),
    Part.LineSegment(V(770, 45, 0), V(790, 45, 0)),
    Part.LineSegment(V(790, 45, 0), V(790, 65, 0)),
    Part.LineSegment(V(510, -45, 0), V(490, -45, 0)),
    Part.LineSegment(V(490, -45, 0), V(490, -65, 0)),
    Part.LineSegment(V(490, -65, 0), V(510, -65, 0)),
    Part.LineSegment(V(510, -65, 0), V(510, -45, 0)),
    Part.LineSegment(V(790, -45, 0), V(770, -45, 0)),
    Part.LineSegment(V(770, -45, 0), V(770, -65, 0)),
    Part.LineSegment(V(770, -65, 0), V(790, -65, 0)),
    Part.LineSegment(V(790, -65, 0), V(790, -45, 0)),
], False)
sketch14.addConstraint([
    Sketcher.Constraint("Coincident", 0, 2, 1, 1),
    Sketcher.Constraint("Coincident", 1, 2, 2, 1),
    Sketcher.Constraint("Coincident", 2, 2, 3, 1),
    Sketcher.Constraint("Coincident", 3, 2, 0, 1),
    Sketcher.Constraint("Coincident", 4, 2, 5, 1),
    Sketcher.Constraint("Coincident", 5, 2, 6, 1),
    Sketcher.Constraint("Coincident", 6, 2, 7, 1),
    Sketcher.Constraint("Coincident", 7, 2, 4, 1),
    Sketcher.Constraint("Coincident", 8, 2, 9, 1),
    Sketcher.Constraint("Coincident", 9, 2, 10, 1),
    Sketcher.Constraint("Coincident", 10, 2, 11, 1),
    Sketcher.Constraint("Coincident", 11, 2, 8, 1),
    Sketcher.Constraint("Coincident", 12, 2, 13, 1),
    Sketcher.Constraint("Coincident", 13, 2, 14, 1),
    Sketcher.Constraint("Coincident", 14, 2, 15, 1),
    Sketcher.Constraint("Coincident", 15, 2, 12, 1),
    Sketcher.Constraint("Coincident", 16, 2, 17, 1),
    Sketcher.Constraint("Coincident", 17, 2, 18, 1),
    Sketcher.Constraint("Coincident", 18, 2, 19, 1),
    Sketcher.Constraint("Coincident", 19, 2, 16, 1),
    Sketcher.Constraint("Coincident", 20, 2, 21, 1),
    Sketcher.Constraint("Coincident", 21, 2, 22, 1),
    Sketcher.Constraint("Coincident", 22, 2, 23, 1),
    Sketcher.Constraint("Coincident", 23, 2, 20, 1),
    Sketcher.Constraint("Horizontal", 0),
    Sketcher.Constraint("Vertical", 1),
    Sketcher.Constraint("Horizontal", 2),
    Sketcher.Constraint("Vertical", 3),
    Sketcher.Constraint("Horizontal", 4),
    Sketcher.Constraint("Vertical", 5),
    Sketcher.Constraint("Horizontal", 6),
    Sketcher.Constraint("Vertical", 7),
    Sketcher.Constraint("Horizontal", 8),
    Sketcher.Constraint("Vertical", 9),
    Sketcher.Constraint("Horizontal", 10),
    Sketcher.Constraint("Vertical", 11),
    Sketcher.Constraint("Horizontal", 12),
    Sketcher.Constraint("Vertical", 13),
    Sketcher.Constraint("Horizontal", 14),
    Sketcher.Constraint("Vertical", 15),
    Sketcher.Constraint("Horizontal", 16),
    Sketcher.Constraint("Vertical", 17),
    Sketcher.Constraint("Horizontal", 18),
    Sketcher.Constraint("Vertical", 19),
    Sketcher.Constraint("Horizontal", 20),
    Sketcher.Constraint("Vertical", 21),
    Sketcher.Constraint("Horizontal", 22),
    Sketcher.Constraint("Vertical", 23),
    Sketcher.Constraint("Symmetric", 1, 2, 4, 2, -1),
    Sketcher.Constraint("Symmetric", 3, 2, 6, 2, -1),
    Sketcher.Constraint("Symmetric", 9, 2, 16, 2, -1),
    Sketcher.Constraint("Symmetric", 11, 2, 18, 2, -1),
    Sketcher.Constraint("Symmetric", 13, 2, 20, 2, -1),
    Sketcher.Constraint("Symmetric", 15, 2, 22, 2, -1),
    Sketcher.Constraint("Horizontal", 3, 2, 8, 2),
    Sketcher.Constraint("Horizontal", 2, 2, 9, 2),
    Sketcher.Constraint("Horizontal", 11, 2, 12, 2),
    Sketcher.Constraint("Horizontal", 10, 2, 13, 2),
    Sketcher.Constraint("Equal", 6, 8),
    Sketcher.Constraint("Equal", 10, 12),
    Sketcher.Constraint("Equal", 22, 1),
    Sketcher.Constraint("DistanceX", 0, 2, 0, 1, 20.0),
    Sketcher.Constraint("DistanceX", -1, 1, 0, 2, 205.0),
    Sketcher.Constraint("DistanceY", -1, 1, 0, 2, 65.0),
    Sketcher.Constraint("DistanceX", -1, 1, 8, 2, 490.0),
    Sketcher.Constraint("DistanceX", -1, 1, 12, 2, 770.0),
])
pad11 = body.newObject("PartDesign::Pad", "Pad010")
pad11.Profile = sketch14
pad11.Length = 10

sketch15 = body.newObject("Sketcher::SketchObject", "Sketch014")
sketch15.AttachmentSupport = (doc.getObject("YZ_Plane"), [""])
sketch15.MapMode = "FlatFace"
sketch15.AttachmentOffset = App.Placement(V(0, 0, -30), App.Rotation())
sketch15.addGeometry([
    Part.LineSegment(V(785, 60, 0), V(775, 60, 0)),
    Part.LineSegment(V(775, 60, 0), V(775, 50, 0)),
    Part.LineSegment(V(775, 50, 0), V(785, 50, 0)),
    Part.LineSegment(V(785, 50, 0), V(785, 60, 0)),
    Part.LineSegment(V(505, 60, 0), V(495, 60, 0)),
    Part.LineSegment(V(495, 60, 0), V(495, 50, 0)),
    Part.LineSegment(V(495, 50, 0), V(505, 50, 0)),
    Part.LineSegment(V(505, 50, 0), V(505, 60, 0)),
    Part.LineSegment(V(220, 60, 0), V(210, 60, 0)),
    Part.LineSegment(V(210, 60, 0), V(210, 50, 0)),
    Part.LineSegment(V(210, 50, 0), V(220, 50, 0)),
    Part.LineSegment(V(220, 50, 0), V(220, 60, 0)),
    Part.LineSegment(V(220, -50, 0), V(210, -50, 0)),
    Part.LineSegment(V(210, -50, 0), V(210, -60, 0)),
    Part.LineSegment(V(210, -60, 0), V(220, -60, 0)),
    Part.LineSegment(V(220, -60, 0), V(220, -50, 0)),
    Part.LineSegment(V(505, -50, 0), V(495, -50, 0)),
    Part.LineSegment(V(495, -50, 0), V(495, -60, 0)),
    Part.LineSegment(V(495, -60, 0), V(505, -60, 0)),
    Part.LineSegment(V(505, -60, 0), V(505, -50, 0)),
    Part.LineSegment(V(785, -50, 0), V(775, -50, 0)),
    Part.LineSegment(V(775, -50, 0), V(775, -60, 0)),
    Part.LineSegment(V(775, -60, 0), V(785, -60, 0)),
    Part.LineSegment(V(785, -60, 0), V(785, -50, 0)),
], False)
sketch15.addConstraint([
    Sketcher.Constraint("Coincident", 0, 2, 1, 1),
    Sketcher.Constraint("Coincident", 1, 2, 2, 1),
    Sketcher.Constraint("Coincident", 2, 2, 3, 1),
    Sketcher.Constraint("Coincident", 3, 2, 0, 1),
    Sketcher.Constraint("Coincident", 4, 2, 5, 1),
    Sketcher.Constraint("Coincident", 5, 2, 6, 1),
    Sketcher.Constraint("Coincident", 6, 2, 7, 1),
    Sketcher.Constraint("Coincident", 7, 2, 4, 1),
    Sketcher.Constraint("Coincident", 8, 2, 9, 1),
    Sketcher.Constraint("Coincident", 9, 2, 10, 1),
    Sketcher.Constraint("Coincident", 10, 2, 11, 1),
    Sketcher.Constraint("Coincident", 11, 2, 8, 1),
    Sketcher.Constraint("Coincident", 12, 2, 13, 1),
    Sketcher.Constraint("Coincident", 13, 2, 14, 1),
    Sketcher.Constraint("Coincident", 14, 2, 15, 1),
    Sketcher.Constraint("Coincident", 15, 2, 12, 1),
    Sketcher.Constraint("Coincident", 16, 2, 17, 1),
    Sketcher.Constraint("Coincident", 17, 2, 18, 1),
    Sketcher.Constraint("Coincident", 18, 2, 19, 1),
    Sketcher.Constraint("Coincident", 19, 2, 16, 1),
    Sketcher.Constraint("Coincident", 20, 2, 21, 1),
    Sketcher.Constraint("Coincident", 21, 2, 22, 1),
    Sketcher.Constraint("Coincident", 22, 2, 23, 1),
    Sketcher.Constraint("Coincident", 23, 2, 20, 1),
    Sketcher.Constraint("Horizontal", 0),
    Sketcher.Constraint("Vertical", 1),
    Sketcher.Constraint("Horizontal", 2),
    Sketcher.Constraint("Vertical", 3),
    Sketcher.Constraint("Horizontal", 4),
    Sketcher.Constraint("Vertical", 5),
    Sketcher.Constraint("Horizontal", 6),
    Sketcher.Constraint("Vertical", 7),
    Sketcher.Constraint("Horizontal", 8),
    Sketcher.Constraint("Vertical", 9),
    Sketcher.Constraint("Horizontal", 10),
    Sketcher.Constraint("Vertical", 11),
    Sketcher.Constraint("Horizontal", 12),
    Sketcher.Constraint("Vertical", 13),
    Sketcher.Constraint("Horizontal", 14),
    Sketcher.Constraint("Vertical", 15),
    Sketcher.Constraint("Horizontal", 16),
    Sketcher.Constraint("Vertical", 17),
    Sketcher.Constraint("Horizontal", 18),
    Sketcher.Constraint("Vertical", 19),
    Sketcher.Constraint("Horizontal", 20),
    Sketcher.Constraint("Vertical", 21),
    Sketcher.Constraint("Horizontal", 22),
    Sketcher.Constraint("Vertical", 23),
    Sketcher.Constraint("Symmetric", 9, 2, 12, 2, -1),
    Sketcher.Constraint("Symmetric", 11, 2, 14, 2, -1),
    Sketcher.Constraint("Symmetric", 5, 2, 16, 2, -1),
    Sketcher.Constraint("Symmetric", 7, 2, 18, 2, -1),
    Sketcher.Constraint("Symmetric", 1, 2, 20, 2, -1),
    Sketcher.Constraint("Symmetric", 3, 2, 22, 2, -1),
    Sketcher.Constraint("Horizontal", 3, 2, 4, 2),
    Sketcher.Constraint("Horizontal", 2, 2, 5, 2),
    Sketcher.Constraint("Horizontal", 7, 2, 8, 2),
    Sketcher.Constraint("Horizontal", 6, 2, 9, 2),
    Sketcher.Constraint("Equal", 2, 4),
    Sketcher.Constraint("Equal", 6, 8),
    Sketcher.Constraint("Equal", 22, 1),
    Sketcher.Constraint("DistanceX", 0, 2, 0, 1, 10.0),
    Sketcher.Constraint("DistanceX", -1, 1, 0, 2, 775.0),
    Sketcher.Constraint("DistanceY", -1, 1, 0, 2, 60.0),
    Sketcher.Constraint("DistanceX", -1, 1, 4, 2, 495.0),
    Sketcher.Constraint("DistanceX", -1, 1, 8, 2, 210.0),
])
pocket4 = body.newObject("PartDesign::Pocket", "Pocket003")
pocket4.Profile = sketch15
pocket4.Length = 20

doc.recompute()
